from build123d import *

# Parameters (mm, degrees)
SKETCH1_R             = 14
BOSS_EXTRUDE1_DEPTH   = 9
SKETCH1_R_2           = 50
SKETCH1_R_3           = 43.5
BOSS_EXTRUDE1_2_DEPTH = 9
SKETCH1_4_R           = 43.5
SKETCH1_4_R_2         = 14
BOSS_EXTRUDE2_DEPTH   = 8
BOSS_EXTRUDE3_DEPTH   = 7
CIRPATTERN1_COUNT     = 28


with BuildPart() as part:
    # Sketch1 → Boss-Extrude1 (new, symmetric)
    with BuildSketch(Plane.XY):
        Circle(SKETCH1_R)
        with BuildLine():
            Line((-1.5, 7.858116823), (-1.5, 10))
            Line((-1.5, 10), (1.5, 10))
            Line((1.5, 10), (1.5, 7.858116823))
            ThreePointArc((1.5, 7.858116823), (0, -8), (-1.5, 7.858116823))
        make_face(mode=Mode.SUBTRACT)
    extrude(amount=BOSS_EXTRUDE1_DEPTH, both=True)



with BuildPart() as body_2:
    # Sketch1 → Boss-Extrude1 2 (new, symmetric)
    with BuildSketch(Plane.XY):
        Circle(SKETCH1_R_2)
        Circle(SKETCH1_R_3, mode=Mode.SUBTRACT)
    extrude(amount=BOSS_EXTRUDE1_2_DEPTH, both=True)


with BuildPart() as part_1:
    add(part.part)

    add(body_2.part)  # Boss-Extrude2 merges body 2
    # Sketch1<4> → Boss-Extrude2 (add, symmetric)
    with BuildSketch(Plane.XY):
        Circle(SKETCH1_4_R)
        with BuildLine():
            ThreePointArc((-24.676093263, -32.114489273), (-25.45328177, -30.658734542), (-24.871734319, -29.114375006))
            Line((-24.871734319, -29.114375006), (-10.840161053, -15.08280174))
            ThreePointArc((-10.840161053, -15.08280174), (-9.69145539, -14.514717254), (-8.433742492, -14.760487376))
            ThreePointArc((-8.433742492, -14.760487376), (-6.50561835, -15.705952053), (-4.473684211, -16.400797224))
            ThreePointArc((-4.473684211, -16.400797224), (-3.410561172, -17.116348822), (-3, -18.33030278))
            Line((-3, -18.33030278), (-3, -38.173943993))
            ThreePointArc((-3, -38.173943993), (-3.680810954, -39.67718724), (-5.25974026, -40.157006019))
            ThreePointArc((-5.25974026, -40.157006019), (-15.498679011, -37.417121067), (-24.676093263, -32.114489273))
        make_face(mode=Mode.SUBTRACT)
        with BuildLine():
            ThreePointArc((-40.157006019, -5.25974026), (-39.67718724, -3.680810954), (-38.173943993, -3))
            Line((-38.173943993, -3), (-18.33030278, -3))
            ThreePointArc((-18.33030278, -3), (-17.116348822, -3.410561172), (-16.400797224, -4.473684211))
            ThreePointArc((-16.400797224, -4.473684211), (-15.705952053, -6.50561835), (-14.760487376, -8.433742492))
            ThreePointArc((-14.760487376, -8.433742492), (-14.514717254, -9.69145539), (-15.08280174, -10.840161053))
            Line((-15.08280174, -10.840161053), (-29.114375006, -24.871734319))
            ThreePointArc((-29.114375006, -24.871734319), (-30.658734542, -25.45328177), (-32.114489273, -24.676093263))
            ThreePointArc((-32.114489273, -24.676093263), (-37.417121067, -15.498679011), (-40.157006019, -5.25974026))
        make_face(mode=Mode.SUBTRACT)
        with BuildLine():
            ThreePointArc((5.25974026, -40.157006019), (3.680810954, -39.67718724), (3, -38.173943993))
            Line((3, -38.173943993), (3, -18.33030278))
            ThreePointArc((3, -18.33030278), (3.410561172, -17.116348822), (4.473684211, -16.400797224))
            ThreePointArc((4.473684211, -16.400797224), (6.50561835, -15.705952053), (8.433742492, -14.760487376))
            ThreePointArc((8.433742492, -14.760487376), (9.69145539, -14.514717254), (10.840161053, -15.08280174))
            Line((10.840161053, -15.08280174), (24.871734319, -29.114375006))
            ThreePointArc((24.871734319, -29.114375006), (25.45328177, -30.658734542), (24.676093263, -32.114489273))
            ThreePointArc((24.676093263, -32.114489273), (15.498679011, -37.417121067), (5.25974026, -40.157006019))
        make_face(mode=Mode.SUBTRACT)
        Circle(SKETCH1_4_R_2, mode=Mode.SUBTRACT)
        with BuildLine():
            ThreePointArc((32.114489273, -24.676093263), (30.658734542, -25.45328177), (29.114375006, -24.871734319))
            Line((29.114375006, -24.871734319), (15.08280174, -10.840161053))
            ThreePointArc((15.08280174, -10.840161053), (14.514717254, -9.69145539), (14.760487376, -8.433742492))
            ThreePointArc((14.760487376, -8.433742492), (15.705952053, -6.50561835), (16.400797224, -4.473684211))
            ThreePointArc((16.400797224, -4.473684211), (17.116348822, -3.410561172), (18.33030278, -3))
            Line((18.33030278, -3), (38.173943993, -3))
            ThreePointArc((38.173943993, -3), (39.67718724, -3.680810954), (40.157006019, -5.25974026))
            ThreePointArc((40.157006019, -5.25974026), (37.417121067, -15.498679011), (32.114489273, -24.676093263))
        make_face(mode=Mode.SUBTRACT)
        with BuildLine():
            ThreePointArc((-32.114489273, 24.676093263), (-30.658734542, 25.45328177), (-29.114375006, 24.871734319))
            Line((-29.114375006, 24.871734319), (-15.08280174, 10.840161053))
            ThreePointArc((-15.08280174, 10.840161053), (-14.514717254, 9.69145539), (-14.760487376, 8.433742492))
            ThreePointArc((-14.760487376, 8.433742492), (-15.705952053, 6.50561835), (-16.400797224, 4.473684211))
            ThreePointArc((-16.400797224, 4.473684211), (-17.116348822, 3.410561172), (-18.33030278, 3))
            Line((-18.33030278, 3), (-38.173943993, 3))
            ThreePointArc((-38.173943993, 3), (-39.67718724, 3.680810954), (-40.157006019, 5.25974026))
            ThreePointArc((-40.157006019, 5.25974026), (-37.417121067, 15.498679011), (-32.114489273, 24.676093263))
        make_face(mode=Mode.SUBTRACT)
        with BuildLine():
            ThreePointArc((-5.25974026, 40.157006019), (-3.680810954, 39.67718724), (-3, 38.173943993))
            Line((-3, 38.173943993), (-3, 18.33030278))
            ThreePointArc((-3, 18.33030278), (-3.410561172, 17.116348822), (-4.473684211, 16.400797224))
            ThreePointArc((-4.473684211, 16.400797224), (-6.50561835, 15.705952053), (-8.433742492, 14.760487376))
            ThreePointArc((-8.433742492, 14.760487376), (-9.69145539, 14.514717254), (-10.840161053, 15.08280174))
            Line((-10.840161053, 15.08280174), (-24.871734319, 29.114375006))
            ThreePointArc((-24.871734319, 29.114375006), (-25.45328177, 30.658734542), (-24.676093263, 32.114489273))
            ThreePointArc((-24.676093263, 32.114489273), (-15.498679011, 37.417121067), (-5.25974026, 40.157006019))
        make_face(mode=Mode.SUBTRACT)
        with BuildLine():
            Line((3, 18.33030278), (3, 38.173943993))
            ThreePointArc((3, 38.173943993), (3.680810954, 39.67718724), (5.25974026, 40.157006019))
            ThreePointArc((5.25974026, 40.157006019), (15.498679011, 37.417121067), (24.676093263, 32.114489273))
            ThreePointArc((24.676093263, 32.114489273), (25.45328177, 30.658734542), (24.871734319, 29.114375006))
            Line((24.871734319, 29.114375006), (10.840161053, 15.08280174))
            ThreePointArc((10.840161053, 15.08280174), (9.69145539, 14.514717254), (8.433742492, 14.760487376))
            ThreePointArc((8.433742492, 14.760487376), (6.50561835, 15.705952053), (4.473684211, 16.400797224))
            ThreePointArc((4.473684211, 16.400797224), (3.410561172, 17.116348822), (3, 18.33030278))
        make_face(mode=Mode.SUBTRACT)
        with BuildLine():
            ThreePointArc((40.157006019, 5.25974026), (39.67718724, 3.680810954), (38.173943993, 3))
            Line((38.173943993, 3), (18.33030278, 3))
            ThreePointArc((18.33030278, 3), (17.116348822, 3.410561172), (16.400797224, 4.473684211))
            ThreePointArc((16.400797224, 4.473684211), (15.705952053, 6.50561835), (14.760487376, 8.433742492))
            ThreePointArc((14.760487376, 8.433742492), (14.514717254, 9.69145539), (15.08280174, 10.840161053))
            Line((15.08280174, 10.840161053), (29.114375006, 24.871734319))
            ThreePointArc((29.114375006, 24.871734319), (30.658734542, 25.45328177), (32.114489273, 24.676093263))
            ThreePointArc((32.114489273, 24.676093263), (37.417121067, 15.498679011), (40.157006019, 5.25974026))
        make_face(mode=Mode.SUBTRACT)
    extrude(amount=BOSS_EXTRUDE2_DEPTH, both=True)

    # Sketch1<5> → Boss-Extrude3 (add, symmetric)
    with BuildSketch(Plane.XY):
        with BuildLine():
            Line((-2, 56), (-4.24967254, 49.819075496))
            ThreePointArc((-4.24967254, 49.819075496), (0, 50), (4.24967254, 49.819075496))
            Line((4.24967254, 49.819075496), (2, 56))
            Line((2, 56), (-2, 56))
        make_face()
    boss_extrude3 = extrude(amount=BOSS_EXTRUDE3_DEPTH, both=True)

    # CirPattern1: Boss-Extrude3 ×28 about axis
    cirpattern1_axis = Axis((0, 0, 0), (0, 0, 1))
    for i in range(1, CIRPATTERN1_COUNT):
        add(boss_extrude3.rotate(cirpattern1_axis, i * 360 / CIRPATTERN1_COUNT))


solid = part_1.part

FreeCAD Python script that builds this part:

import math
import FreeCAD as App
import Part
import Sketcher

V = App.Vector
Q = App.Units.Quantity

doc = App.newDocument("Part")
body = doc.addObject("PartDesign::Body", "Body")

# Sketch on XY plane
sketch1 = body.newObject("Sketcher::SketchObject", "Sketch")
sketch1.AttachmentSupport = (doc.getObject("XY_Plane"), [""])
sketch1.MapMode = "FlatFace"
sketch1.addGeometry([
    Part.Circle(V(0, 0, 0), V(0, 0, 1), 14),  # 0
    Part.ArcOfCircle(Part.Circle(V(0, 0, 0), V(0, 0, 1), 8), math.radians(101), math.radians(439)),  # 1
    Part.LineSegment(V(-1.5, 7.9, 0), V(-1.5, 10, 0)),  # 2
    Part.LineSegment(V(-1.5, 10, 0), V(1.5, 10, 0)),  # 3
    Part.LineSegment(V(1.5, 10, 0), V(1.5, 7.9, 0)),  # 4
], False)
sketch1.addConstraint([
    Sketcher.Constraint("Coincident", 1, 1, 2, 1),
    Sketcher.Constraint("Coincident", 2, 2, 3, 1),
    Sketcher.Constraint("Coincident", 3, 2, 4, 1),
    Sketcher.Constraint("Coincident", 4, 2, 1, 2),
    Sketcher.Constraint("Vertical", 2),
    Sketcher.Constraint("Horizontal", 3),
    Sketcher.Constraint("Vertical", 4),
    Sketcher.Constraint("Coincident", 0, 3, -1, 1),
    Sketcher.Constraint("Coincident", 1, 3, -1, 1),
    Sketcher.Constraint("Horizontal", 1, 1, 4, 2),
    Sketcher.Constraint("Diameter", 0, 28.0),
    Sketcher.Constraint("Radius", 1, 8.0),
    Sketcher.Constraint("DistanceX", 3, 1, 3, 2, 3.0),
    Sketcher.Constraint("DistanceY", -1, 1, 2, 2, 10.0),
])
pad1 = body.newObject("PartDesign::Pad", "Pad")
pad1.Profile = sketch1
pad1.Length = 18
pad1.Midplane = True
body2 = doc.addObject("PartDesign::Body", "Body001")

# Sketch on XY plane
sketch2 = body2.newObject("Sketcher::SketchObject", "Sketch001")
sketch2.AttachmentSupport = (doc.getObject("XY_Plane001"), [""])
sketch2.MapMode = "FlatFace"
sketch2.addGeometry([
    Part.Circle(V(0, 0, 0), V(0, 0, 1), 50),
    Part.Circle(V(0, 0, 0), V(0, 0, 1), 44),
], False)
sketch2.addConstraint([
    Sketcher.Constraint("Coincident", 0, 3, -1, 1),
    Sketcher.Constraint("Coincident", 1, 3, -1, 1),
    Sketcher.Constraint("Diameter", 0, 100.0),
    Sketcher.Constraint("Diameter", 1, 87.0),
])
pad2 = body2.newObject("PartDesign::Pad", "Pad001")
pad2.Profile = sketch2
pad2.Length = 18
pad2.Midplane = True
body.AllowCompound = True
doc.recompute()

boolean = body.newObject("PartDesign::Boolean", "Boolean")
boolean.Type = "Fuse"
boolean.addObjects([body2])

# Sketch on XY plane
sketch3 = body.newObject("Sketcher::SketchObject", "Sketch002")
sketch3.AttachmentSupport = (doc.getObject("XY_Plane"), [""])
sketch3.MapMode = "FlatFace"
sketch3.addGeometry([
    Part.Circle(V(0, 0, 0), V(0, 0, 1), 43.5),  # 0
    Part.ArcOfCircle(Part.Circle(V(0, 0, 0), V(0, 0, 1), 40.5), math.radians(-128), math.radians(-97)),  # 1
    Part.ArcOfCircle(Part.Circle(V(-23.5, -30.5, 0), V(0, 0, 1), 2), math.radians(135), math.radians(232)),  # 2
    Part.LineSegment(V(-24.9, -29.1, 0), V(-10.8, -15.1, 0)),  # 3
    Part.ArcOfCircle(Part.Circle(V(-9.4, -16.5, 0), V(0, 0, 1), 2), math.radians(60), math.radians(135)),  # 4
    Part.ArcOfCircle(Part.Circle(V(0, 0, 0), V(0, 0, 1), 17), math.radians(-119.74), math.radians(-105.26)),  # 5
    Part.ArcOfCircle(Part.Circle(V(-5, -18.3, 0), V(0, 0, 1), 2), math.radians(0), math.radians(75)),  # 6
    Part.LineSegment(V(-3, -18.3, 0), V(-3, -38.2, 0)),  # 7
    Part.ArcOfCircle(Part.Circle(V(-5, -38.2, 0), V(0, 0, 1), 2), math.radians(-97), math.radians(0)),  # 8
    Part.ArcOfCircle(Part.Circle(V(0, 0, 0), V(0, 0, 1), 40.5), math.radians(-173), math.radians(-142)),  # 9
    Part.ArcOfCircle(Part.Circle(V(-38.2, -5, 0), V(0, 0, 1), 2), math.radians(90), math.radians(187)),  # 10
    Part.LineSegment(V(-38.2, -3, 0), V(-18.3, -3, 0)),  # 11
    Part.ArcOfCircle(Part.Circle(V(-18.3, -5, 0), V(0, 0, 1), 2), math.radians(15), math.radians(90)),  # 12
    Part.ArcOfCircle(Part.Circle(V(0, 0, 0), V(0, 0, 1), 17), math.radians(-164.74), math.radians(-150.26)),  # 13
    Part.ArcOfCircle(Part.Circle(V(-16.5, -9.4, 0), V(0, 0, 1), 2), math.radians(-45), math.radians(30)),  # 14
    Part.LineSegment(V(-15.1, -10.8, 0), V(-29.1, -24.9, 0)),  # 15
    Part.ArcOfCircle(Part.Circle(V(-30.5, -23.5, 0), V(0, 0, 1), 2), math.radians(-142), math.radians(-45)),  # 16
    Part.ArcOfCircle(Part.Circle(V(0, 0, 0), V(0, 0, 1), 40.5), math.radians(-83), math.radians(-52)),  # 17
    Part.ArcOfCircle(Part.Circle(V(5, -38.2, 0), V(0, 0, 1), 2), math.radians(-180), math.radians(-83)),  # 18
    Part.LineSegment(V(3, -38.2, 0), V(3, -18.3, 0)),  # 19
    Part.ArcOfCircle(Part.Circle(V(5, -18.3, 0), V(0, 0, 1), 2), math.radians(105), math.radians(180)),  # 20
    Part.ArcOfCircle(Part.Circle(V(0, 0, 0), V(0, 0, 1), 17), math.radians(-74.74), math.radians(-60.26)),  # 21
    Part.ArcOfCircle(Part.Circle(V(9.4, -16.5, 0), V(0, 0, 1), 2), math.radians(45), math.radians(120)),  # 22
    Part.LineSegment(V(10.8, -15.1, 0), V(24.9, -29.1, 0)),  # 23
    Part.ArcOfCircle(Part.Circle(V(23.5, -30.5, 0), V(0, 0, 1), 2), math.radians(-52), math.radians(45)),  # 24
    Part.ArcOfCircle(Part.Circle(V(0, 0, 0), V(0, 0, 1), 40.5), math.radians(-38), math.radians(-7)),  # 25
    Part.ArcOfCircle(Part.Circle(V(30.5, -23.5, 0), V(0, 0, 1), 2), math.radians(-135), math.radians(-38)),  # 26
    Part.LineSegment(V(29.1, -24.9, 0), V(15.1, -10.8, 0)),  # 27
    Part.ArcOfCircle(Part.Circle(V(16.5, -9.4, 0), V(0, 0, 1), 2), math.radians(150), math.radians(225)),  # 28
    Part.ArcOfCircle(Part.Circle(V(0, 0, 0), V(0, 0, 1), 17), math.radians(-29.74), math.radians(-15.26)),  # 29
    Part.ArcOfCircle(Part.Circle(V(18.3, -5, 0), V(0, 0, 1), 2), math.radians(90), math.radians(165)),  # 30
    Part.LineSegment(V(18.3, -3, 0), V(38.2, -3, 0)),  # 31
    Part.ArcOfCircle(Part.Circle(V(38.2, -5, 0), V(0, 0, 1), 2), math.radians(-7), math.radians(90)),  # 32
    Part.ArcOfCircle(Part.Circle(V(0, 0, 0), V(0, 0, 1), 40.5), math.radians(142), math.radians(173)),  # 33
    Part.ArcOfCircle(Part.Circle(V(-30.5, 23.5, 0), V(0, 0, 1), 2), math.radians(45), math.radians(142)),  # 34
    Part.LineSegment(V(-29.1, 24.9, 0), V(-15.1, 10.8, 0)),  # 35
    Part.ArcOfCircle(Part.Circle(V(-16.5, 9.4, 0), V(0, 0, 1), 2), math.radians(-30), math.radians(45)),  # 36
    Part.ArcOfCircle(Part.Circle(V(0, 0, 0), V(0, 0, 1), 17), math.radians(150.26), math.radians(164.74)),  # 37
    Part.ArcOfCircle(Part.Circle(V(-18.3, 5, 0), V(0, 0, 1), 2), math.radians(-90), math.radians(-15)),  # 38
    Part.LineSegment(V(-18.3, 3, 0), V(-38.2, 3, 0)),  # 39
    Part.ArcOfCircle(Part.Circle(V(-38.2, 5, 0), V(0, 0, 1), 2), math.radians(173), math.radians(270)),  # 40
    Part.ArcOfCircle(Part.Circle(V(0, 0, 0), V(0, 0, 1), 40.5), math.radians(97), math.radians(128)),  # 41
    Part.ArcOfCircle(Part.Circle(V(-5, 38.2, 0), V(0, 0, 1), 2), math.radians(0), math.radians(97)),  # 42
    Part.LineSegment(V(-3, 38.2, 0), V(-3, 18.3, 0)),  # 43
    Part.ArcOfCircle(Part.Circle(V(-5, 18.3, 0), V(0, 0, 1), 2), math.radians(-75), math.radians(0)),  # 44
    Part.ArcOfCircle(Part.Circle(V(0, 0, 0), V(0, 0, 1), 17), math.radians(105.26), math.radians(119.74)),  # 45
    Part.ArcOfCircle(Part.Circle(V(-9.4, 16.5, 0), V(0, 0, 1), 2), math.radians(-135), math.radians(-60)),  # 46
    Part.LineSegment(V(-10.8, 15.1, 0), V(-24.9, 29.1, 0)),  # 47
    Part.ArcOfCircle(Part.Circle(V(-23.5, 30.5, 0), V(0, 0, 1), 2), math.radians(128), math.radians(225)),  # 48
    Part.Circle(V(0, 0, 0), V(0, 0, 1), 14),  # 49
    Part.ArcOfCircle(Part.Circle(V(0, 0, 0), V(0, 0, 1), 40.5), math.radians(7), math.radians(38)),  # 50
    Part.ArcOfCircle(Part.Circle(V(38.2, 5, 0), V(0, 0, 1), 2), math.radians(-90), math.radians(7)),  # 51
    Part.LineSegment(V(38.2, 3, 0), V(18.3, 3, 0)),  # 52
    Part.ArcOfCircle(Part.Circle(V(18.3, 5, 0), V(0, 0, 1), 2), math.radians(-165), math.radians(-90)),  # 53
    Part.ArcOfCircle(Part.Circle(V(0, 0, 0), V(0, 0, 1), 17), math.radians(15.26), math.radians(29.74)),  # 54
    Part.ArcOfCircle(Part.Circle(V(16.5, 9.4, 0), V(0, 0, 1), 2), math.radians(135), math.radians(210)),  # 55
    Part.LineSegment(V(15.1, 10.8, 0), V(29.1, 24.9, 0)),  # 56
    Part.ArcOfCircle(Part.Circle(V(30.5, 23.5, 0), V(0, 0, 1), 2), math.radians(38), math.radians(135)),  # 57
    Part.ArcOfCircle(Part.Circle(V(5, 18.3, 0), V(0, 0, 1), 2), math.radians(180), math.radians(255)),  # 58
    Part.LineSegment(V(3, 18.3, 0), V(3, 38.2, 0)),  # 59
    Part.ArcOfCircle(Part.Circle(V(5, 38.2, 0), V(0, 0, 1), 2), math.radians(83), math.radians(180)),  # 60
    Part.ArcOfCircle(Part.Circle(V(0, 0, 0), V(0, 0, 1), 40.5), math.radians(52), math.radians(83)),  # 61
    Part.ArcOfCircle(Part.Circle(V(23.5, 30.5, 0), V(0, 0, 1), 2), math.radians(-45), math.radians(52)),  # 62
    Part.LineSegment(V(24.9, 29.1, 0), V(10.8, 15.1, 0)),  # 63
    Part.ArcOfCircle(Part.Circle(V(9.4, 16.5, 0), V(0, 0, 1), 2), math.radians(-120), math.radians(-45)),  # 64
    Part.ArcOfCircle(Part.Circle(V(0, 0, 0), V(0, 0, 1), 17), math.radians(60.26), math.radians(74.74)),  # 65
], False)
sketch3.addConstraint([
    Sketcher.Constraint("Tangent", 1, 1, 2, 2),
    Sketcher.Constraint("Tangent", 2, 1, 3, 1),
    Sketcher.Constraint("Tangent", 3, 2, 4, 2),
    Sketcher.Constraint("Tangent", 4, 1, 5, 1),
    Sketcher.Constraint("Tangent", 5, 2, 6, 2),
    Sketcher.Constraint("Tangent", 6, 1, 7, 1),
    Sketcher.Constraint("Tangent", 7, 2, 8, 2),
    Sketcher.Constraint("Tangent", 8, 1, 1, 2),
    Sketcher.Constraint("Tangent", 9, 1, 10, 2),
    Sketcher.Constraint("Tangent", 10, 1, 11, 1),
    Sketcher.Constraint("Tangent", 11, 2, 12, 2),
    Sketcher.Constraint("Tangent", 12, 1, 13, 1),
    Sketcher.Constraint("Tangent", 13, 2, 14, 2),
    Sketcher.Constraint("Tangent", 14, 1, 15, 1),
    Sketcher.Constraint("Tangent", 15, 2, 16, 2),
    Sketcher.Constraint("Tangent", 16, 1, 9, 2),
    Sketcher.Constraint("Tangent", 17, 1, 18, 2),
    Sketcher.Constraint("Tangent", 18, 1, 19, 1),
    Sketcher.Constraint("Tangent", 19, 2, 20, 2),
    Sketcher.Constraint("Tangent", 20, 1, 21, 1),
    Sketcher.Constraint("Tangent", 21, 2, 22, 2),
    Sketcher.Constraint("Tangent", 22, 1, 23, 1),
    Sketcher.Constraint("Tangent", 23, 2, 24, 2),
    Sketcher.Constraint("Tangent", 24, 1, 17, 2),
    Sketcher.Constraint("Tangent", 25, 1, 26, 2),
    Sketcher.Constraint("Tangent", 26, 1, 27, 1),
    Sketcher.Constraint("Tangent", 27, 2, 28, 2),
    Sketcher.Constraint("Tangent", 28, 1, 29, 1),
    Sketcher.Constraint("Tangent", 29, 2, 30, 2),
    Sketcher.Constraint("Tangent", 30, 1, 31, 1),
    Sketcher.Constraint("Tangent", 31, 2, 32, 2),
    Sketcher.Constraint("Tangent", 32, 1, 25, 2),
    Sketcher.Constraint("Tangent", 33, 1, 34, 2),
    Sketcher.Constraint("Tangent", 34, 1, 35, 1),
    Sketcher.Constraint("Tangent", 35, 2, 36, 2),
    Sketcher.Constraint("Tangent", 36, 1, 37, 1),
    Sketcher.Constraint("Tangent", 37, 2, 38, 2),
    Sketcher.Constraint("Tangent", 38, 1, 39, 1),
    Sketcher.Constraint("Tangent", 39, 2, 40, 2),
    Sketcher.Constraint("Tangent", 40, 1, 33, 2),
    Sketcher.Constraint("Tangent", 41, 1, 42, 2),
    Sketcher.Constraint("Tangent", 42, 1, 43, 1),
    Sketcher.Constraint("Tangent", 43, 2, 44, 2),
    Sketcher.Constraint("Tangent", 44, 1, 45, 1),
    Sketcher.Constraint("Tangent", 45, 2, 46, 2),
    Sketcher.Constraint("Tangent", 46, 1, 47, 1),
    Sketcher.Constraint("Tangent", 47, 2, 48, 2),
    Sketcher.Constraint("Tangent", 48, 1, 41, 2),
    Sketcher.Constraint("Tangent", 50, 1, 51, 2),
    Sketcher.Constraint("Tangent", 51, 1, 52, 1),
    Sketcher.Constraint("Tangent", 52, 2, 53, 2),
    Sketcher.Constraint("Tangent", 53, 1, 54, 1),
    Sketcher.Constraint("Tangent", 54, 2, 55, 2),
    Sketcher.Constraint("Tangent", 55, 1, 56, 1),
    Sketcher.Constraint("Tangent", 56, 2, 57, 2),
    Sketcher.Constraint("Tangent", 57, 1, 50, 2),
    Sketcher.Constraint("Tangent", 58, 1, 59, 1),
    Sketcher.Constraint("Tangent", 59, 2, 60, 2),
    Sketcher.Constraint("Tangent", 60, 1, 61, 2),
    Sketcher.Constraint("Tangent", 61, 1, 62, 2),
    Sketcher.Constraint("Tangent", 62, 1, 63, 1),
    Sketcher.Constraint("Tangent", 63, 2, 64, 2),
    Sketcher.Constraint("Tangent", 64, 1, 65, 1),
    Sketcher.Constraint("Tangent", 65, 2, 58, 2),
    Sketcher.Constraint("Vertical", 7),
    Sketcher.Constraint("Horizontal", 11),
    Sketcher.Constraint("Vertical", 19),
    Sketcher.Constraint("Horizontal", 31),
    Sketcher.Constraint("Horizontal", 39),
    Sketcher.Constraint("Vertical", 43),
    Sketcher.Constraint("Horizontal", 52),
    Sketcher.Constraint("Vertical", 59),
    Sketcher.Constraint("Coincident", 0, 3, -1, 1),
    Sketcher.Constraint("Coincident", 1, 3, -1, 1),
    Sketcher.Constraint("Coincident", 5, 3, -1, 1),
    Sketcher.Constraint("Coincident", 9, 3, -1, 1),
    Sketcher.Constraint("Coincident", 13, 3, -1, 1),
    Sketcher.Constraint("Coincident", 17, 3, -1, 1),
    Sketcher.Constraint("Coincident", 21, 3, -1, 1),
    Sketcher.Constraint("Coincident", 25, 3, -1, 1),
    Sketcher.Constraint("Coincident", 29, 3, -1, 1),
    Sketcher.Constraint("Coincident", 33, 3, -1, 1),
    Sketcher.Constraint("Coincident", 37, 3, -1, 1),
    Sketcher.Constraint("Coincident", 41, 3, -1, 1),
    Sketcher.Constraint("Coincident", 45, 3, -1, 1),
    Sketcher.Constraint("Coincident", 49, 3, -1, 1),
    Sketcher.Constraint("Coincident", 50, 3, -1, 1),
    Sketcher.Constraint("Coincident", 54, 3, -1, 1),
    Sketcher.Constraint("Coincident", 61, 3, -1, 1),
    Sketcher.Constraint("Coincident", 65, 3, -1, 1),
    Sketcher.Constraint("Equal", 2, 4),
    Sketcher.Constraint("Equal", 4, 6),
    Sketcher.Constraint("Equal", 6, 8),
    Sketcher.Constraint("Equal", 1, 9),
    Sketcher.Constraint("Equal", 8, 10),
    Sketcher.Constraint("Equal", 10, 12),
    Sketcher.Constraint("Equal", 5, 13),
    Sketcher.Constraint("Equal", 12, 14),
    Sketcher.Constraint("Equal", 14, 16),
    Sketcher.Constraint("Equal", 9, 17),
    Sketcher.Constraint("Equal", 16, 18),
    Sketcher.Constraint("Equal", 18, 20),
    Sketcher.Constraint("Equal", 13, 21),
    Sketcher.Constraint("Equal", 20, 22),
    Sketcher.Constraint("Equal", 22, 24),
    Sketcher.Constraint("Equal", 17, 25),
    Sketcher.Constraint("Equal", 24, 26),
    Sketcher.Constraint("Equal", 26, 28),
    Sketcher.Constraint("Equal", 21, 29),
    Sketcher.Constraint("Equal", 28, 30),
    Sketcher.Constraint("Equal", 30, 32),
    Sketcher.Constraint("Equal", 25, 33),
    Sketcher.Constraint("Equal", 32, 34),
    Sketcher.Constraint("Equal", 34, 36),
    Sketcher.Constraint("Equal", 29, 37),
    Sketcher.Constraint("Equal", 36, 38),
    Sketcher.Constraint("Equal", 38, 40),
    Sketcher.Constraint("Equal", 33, 41),
    Sketcher.Constraint("Equal", 40, 42),
    Sketcher.Constraint("Equal", 42, 44),
    Sketcher.Constraint("Equal", 37, 45),
    Sketcher.Constraint("Equal", 44, 46),
    Sketcher.Constraint("Equal", 46, 48),
    Sketcher.Constraint("Equal", 41, 50),
    Sketcher.Constraint("Equal", 48, 51),
    Sketcher.Constraint("Equal", 51, 53),
    Sketcher.Constraint("Equal", 45, 54),
    Sketcher.Constraint("Equal", 53, 55),
    Sketcher.Constraint("Equal", 55, 57),
    Sketcher.Constraint("Equal", 57, 58),
    Sketcher.Constraint("Equal", 58, 60),
    Sketcher.Constraint("Equal", 50, 61),
    Sketcher.Constraint("Equal", 60, 62),
    Sketcher.Constraint("Equal", 62, 64),
    Sketcher.Constraint("Equal", 54, 65),
    Sketcher.Constraint("Symmetric", 26, 1, 34, 1, -1, 1),
    Sketcher.Constraint("Symmetric", 22, 1, 46, 1, -1, 1),
    Sketcher.Constraint("Symmetric", 14, 1, 55, 1, -1, 1),
    Sketcher.Constraint("Symmetric", 2, 1, 62, 1, -1, 1),
    Sketcher.Constraint("Symmetric", 3, 2, 22, 1, -2),
    Sketcher.Constraint("Symmetric", 15, 2, 26, 1, -2),
    Sketcher.Constraint("Parallel", 3, 15),
    Sketcher.Constraint("Perpendicular", 15, 23),
    Sketcher.Constraint("Horizontal", 8, 3, 18, 3),
    Sketcher.Constraint("Horizontal", 12, 3, 30, 3),
    Sketcher.Constraint("Horizontal", 40, 3, 51, 3),
    Sketcher.Constraint("Horizontal", 44, 3, 58, 3),
    Sketcher.Constraint("Vertical", 12, 3, 38, 3),
    Sketcher.Constraint("Vertical", 8, 3, 42, 3),
    Sketcher.Constraint("Equal", 52, 7),
    Sketcher.Constraint("Equal", 3, 15),
    Sketcher.Constraint("Diameter", 0, 87.0),
    Sketcher.Constraint("Diameter", 49, 28.0),
    Sketcher.Constraint("Radius", 2, 2.0),
    Sketcher.Constraint("Radius", 5, 17.0),
    Sketcher.Constraint("Radius", 1, 40.5),
    Sketcher.Constraint("DistanceX", 6, 3, -1, 1, 5.0),
    Sketcher.Constraint("DistanceY", 3, 2, -1, 1, 15.082802),
])
pad3 = body.newObject("PartDesign::Pad", "Pad002")
pad3.Profile = sketch3
pad3.Length = 16
pad3.Midplane = True

# Sketch on XY plane
sketch4 = body.newObject("Sketcher::SketchObject", "Sketch003")
sketch4.AttachmentSupport = (doc.getObject("XY_Plane"), [""])
sketch4.MapMode = "FlatFace"
sketch4.addGeometry([
    Part.LineSegment(V(-2, 56, 0), V(-4.2, 49.8, 0)),
    Part.ArcOfCircle(Part.Circle(V(0, 0, 0), V(0, 0, 1), 50), math.radians(85.12), math.radians(94.88)),
    Part.LineSegment(V(4.2, 49.8, 0), V(2, 56, 0)),
    Part.LineSegment(V(2, 56, 0), V(-2, 56, 0)),
], False)
sketch4.addConstraint([
    Sketcher.Constraint("Coincident", 0, 2, 1, 2),
    Sketcher.Constraint("Coincident", 1, 1, 2, 1),
    Sketcher.Constraint("Coincident", 2, 2, 3, 1),
    Sketcher.Constraint("Coincident", 3, 2, 0, 1),
    Sketcher.Constraint("Horizontal", 3),
    Sketcher.Constraint("Coincident", 1, 3, -1, 1),
    Sketcher.Constraint("Horizontal", 0, 2, 1, 1),
    Sketcher.Constraint("Equal", 0, 2),
    Sketcher.Constraint("Radius", 1, 50.0),
    Sketcher.Constraint("DistanceX", 3, 2, 3, 1, 4.0),
    Sketcher.Constraint("Angle", 0, Q("-110 deg")),
    Sketcher.Constraint("DistanceY", -1, 1, 2, 2, 56.0),
])
pad4 = body.newObject("PartDesign::Pad", "Pad003")
pad4.Profile = sketch4
pad4.Length = 14
pad4.Midplane = True
doc.recompute()

polarpattern = body.newObject("PartDesign::PolarPattern", "PolarPattern")
polarpattern.Originals = [pad4]
polarpattern.Axis = (doc.getObject("Z_Axis"), [""])
polarpattern.Angle = 360
polarpattern.Occurrences = 28
body.Tip = polarpattern

doc.recompute()
